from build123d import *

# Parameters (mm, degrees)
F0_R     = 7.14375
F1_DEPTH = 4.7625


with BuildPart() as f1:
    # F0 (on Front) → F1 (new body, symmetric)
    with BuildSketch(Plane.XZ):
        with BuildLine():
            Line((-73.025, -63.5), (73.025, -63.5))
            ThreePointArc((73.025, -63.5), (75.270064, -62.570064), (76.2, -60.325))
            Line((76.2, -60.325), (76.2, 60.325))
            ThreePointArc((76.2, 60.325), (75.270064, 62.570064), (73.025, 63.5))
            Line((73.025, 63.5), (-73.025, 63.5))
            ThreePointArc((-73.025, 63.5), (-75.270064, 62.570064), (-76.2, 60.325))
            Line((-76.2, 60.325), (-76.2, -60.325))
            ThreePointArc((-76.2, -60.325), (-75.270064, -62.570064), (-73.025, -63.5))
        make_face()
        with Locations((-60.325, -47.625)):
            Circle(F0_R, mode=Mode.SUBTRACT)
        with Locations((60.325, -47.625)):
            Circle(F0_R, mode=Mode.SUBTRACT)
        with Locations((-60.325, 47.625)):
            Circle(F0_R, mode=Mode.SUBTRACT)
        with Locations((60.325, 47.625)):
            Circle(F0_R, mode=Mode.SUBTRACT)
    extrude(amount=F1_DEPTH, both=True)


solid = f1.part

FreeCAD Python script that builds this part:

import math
import FreeCAD as App
import Part
import Sketcher
from FreeCAD import Vector
Q = App.Units.Quantity

doc = App.newDocument("Part")
params = doc.addObject("Spreadsheet::Sheet", "Params")
for row, (alias, value) in enumerate([
    ("sketch1_diameter", "0.5625 in"),
    ("sketch1_radius", "0.125 in"),
    ("sketch1_height", "4.75 in"),
    ("pad1_length", "0.375 in"),
], start=1):
    params.set(f"A{row}", alias)
    params.set(f"B{row}", "=" + value)
    params.setAlias(f"B{row}", alias)

body = doc.addObject("PartDesign::Body", "Body")

# Sketch on XZ plane
sketch1 = body.newObject("Sketcher::SketchObject", "Sketch")
sketch1.AttachmentSupport = (doc.getObject("XZ_Plane"), [""])
sketch1.MapMode = "FlatFace"
sketch1.addGeometry([
    Part.LineSegment(Vector(-73, -63.5, 0), Vector(73, -63.5, 0)),  # 0
    Part.ArcOfCircle(Part.Circle(Vector(73, -60.3, 0), Vector(0, 0, 1), 3.2), math.radians(-90), math.radians(0)),  # 1
    Part.LineSegment(Vector(76.2, -60.3, 0), Vector(76.2, 60.3, 0)),  # 2
    Part.ArcOfCircle(Part.Circle(Vector(73, 60.3, 0), Vector(0, 0, 1), 3.2), math.radians(0), math.radians(90)),  # 3
    Part.LineSegment(Vector(73, 63.5, 0), Vector(-73, 63.5, 0)),  # 4
    Part.ArcOfCircle(Part.Circle(Vector(-73, 60.3, 0), Vector(0, 0, 1), 3.2), math.radians(90), math.radians(180)),  # 5
    Part.LineSegment(Vector(-76.2, 60.3, 0), Vector(-76.2, -60.3, 0)),  # 6
    Part.ArcOfCircle(Part.Circle(Vector(-73, -60.3, 0), Vector(0, 0, 1), 3.2), math.radians(-180), math.radians(-90)),  # 7
    Part.Circle(Vector(-60.3, -47.6, 0), Vector(0, 0, 1), 7.1),  # 8
    Part.Circle(Vector(60.3, -47.6, 0), Vector(0, 0, 1), 7.1),  # 9
    Part.Circle(Vector(-60.3, 47.6, 0), Vector(0, 0, 1), 7.1),  # 10
    Part.Circle(Vector(60.3, 47.6, 0), Vector(0, 0, 1), 7.1),  # 11
], False)
sketch1.addConstraint([
    Sketcher.Constraint("Tangent", 0, 2, 1, 1),
    Sketcher.Constraint("Tangent", 1, 2, 2, 1),
    Sketcher.Constraint("Tangent", 2, 2, 3, 1),
    Sketcher.Constraint("Tangent", 3, 2, 4, 1),
    Sketcher.Constraint("Tangent", 4, 2, 5, 1),
    Sketcher.Constraint("Tangent", 5, 2, 6, 1),
    Sketcher.Constraint("Tangent", 6, 2, 7, 1),
    Sketcher.Constraint("Tangent", 7, 2, 0, 1),
    Sketcher.Constraint("Horizontal", 0),
    Sketcher.Constraint("Vertical", 2),
    Sketcher.Constraint("Horizontal", 4),
    Sketcher.Constraint("Vertical", 6),
    Sketcher.Constraint("Equal", 1, 3),
    Sketcher.Constraint("Equal", 3, 5),
    Sketcher.Constraint("Equal", 5, 7),
    Sketcher.Constraint("Equal", 8, 9),
    Sketcher.Constraint("Equal", 9, 10),
    Sketcher.Constraint("Equal", 10, 11),
    Sketcher.Constraint("Symmetric", 1, 3, 5, 3, -1, 1),
    Sketcher.Constraint("Symmetric", 9, 3, 10, 3, -1, 1),
    Sketcher.Constraint("Symmetric", 8, 3, 11, 3, -1, 1),
    Sketcher.Constraint("Symmetric", 8, 3, 9, 3, -2),
    Sketcher.Constraint("Diameter", 8, Q("0.5625 in")),
    Sketcher.Constraint("DistanceX", -1, 1, 1, 2, Q("3 in")),
    Sketcher.Constraint("Radius", 1, Q("0.125 in")),
    Sketcher.Constraint("DistanceY", 2, 1, 2, 2, Q("4.75 in")),
    Sketcher.Constraint("DistanceX", 7, 3, 8, 3, Q("0.5 in")),
    Sketcher.Constraint("DistanceY", 7, 3, 8, 3, Q("0.5 in")),
])
sketch1.setExpression("Constraints[22]", "Params.sketch1_diameter")
sketch1.setExpression("Constraints[24]", "Params.sketch1_radius")
sketch1.setExpression("Constraints[25]", "Params.sketch1_height")
pad1 = body.newObject("PartDesign::Pad", "Pad")
pad1.Profile = sketch1
pad1.setExpression("Length", "Params.pad1_length")
pad1.Midplane = True

doc.recompute()
